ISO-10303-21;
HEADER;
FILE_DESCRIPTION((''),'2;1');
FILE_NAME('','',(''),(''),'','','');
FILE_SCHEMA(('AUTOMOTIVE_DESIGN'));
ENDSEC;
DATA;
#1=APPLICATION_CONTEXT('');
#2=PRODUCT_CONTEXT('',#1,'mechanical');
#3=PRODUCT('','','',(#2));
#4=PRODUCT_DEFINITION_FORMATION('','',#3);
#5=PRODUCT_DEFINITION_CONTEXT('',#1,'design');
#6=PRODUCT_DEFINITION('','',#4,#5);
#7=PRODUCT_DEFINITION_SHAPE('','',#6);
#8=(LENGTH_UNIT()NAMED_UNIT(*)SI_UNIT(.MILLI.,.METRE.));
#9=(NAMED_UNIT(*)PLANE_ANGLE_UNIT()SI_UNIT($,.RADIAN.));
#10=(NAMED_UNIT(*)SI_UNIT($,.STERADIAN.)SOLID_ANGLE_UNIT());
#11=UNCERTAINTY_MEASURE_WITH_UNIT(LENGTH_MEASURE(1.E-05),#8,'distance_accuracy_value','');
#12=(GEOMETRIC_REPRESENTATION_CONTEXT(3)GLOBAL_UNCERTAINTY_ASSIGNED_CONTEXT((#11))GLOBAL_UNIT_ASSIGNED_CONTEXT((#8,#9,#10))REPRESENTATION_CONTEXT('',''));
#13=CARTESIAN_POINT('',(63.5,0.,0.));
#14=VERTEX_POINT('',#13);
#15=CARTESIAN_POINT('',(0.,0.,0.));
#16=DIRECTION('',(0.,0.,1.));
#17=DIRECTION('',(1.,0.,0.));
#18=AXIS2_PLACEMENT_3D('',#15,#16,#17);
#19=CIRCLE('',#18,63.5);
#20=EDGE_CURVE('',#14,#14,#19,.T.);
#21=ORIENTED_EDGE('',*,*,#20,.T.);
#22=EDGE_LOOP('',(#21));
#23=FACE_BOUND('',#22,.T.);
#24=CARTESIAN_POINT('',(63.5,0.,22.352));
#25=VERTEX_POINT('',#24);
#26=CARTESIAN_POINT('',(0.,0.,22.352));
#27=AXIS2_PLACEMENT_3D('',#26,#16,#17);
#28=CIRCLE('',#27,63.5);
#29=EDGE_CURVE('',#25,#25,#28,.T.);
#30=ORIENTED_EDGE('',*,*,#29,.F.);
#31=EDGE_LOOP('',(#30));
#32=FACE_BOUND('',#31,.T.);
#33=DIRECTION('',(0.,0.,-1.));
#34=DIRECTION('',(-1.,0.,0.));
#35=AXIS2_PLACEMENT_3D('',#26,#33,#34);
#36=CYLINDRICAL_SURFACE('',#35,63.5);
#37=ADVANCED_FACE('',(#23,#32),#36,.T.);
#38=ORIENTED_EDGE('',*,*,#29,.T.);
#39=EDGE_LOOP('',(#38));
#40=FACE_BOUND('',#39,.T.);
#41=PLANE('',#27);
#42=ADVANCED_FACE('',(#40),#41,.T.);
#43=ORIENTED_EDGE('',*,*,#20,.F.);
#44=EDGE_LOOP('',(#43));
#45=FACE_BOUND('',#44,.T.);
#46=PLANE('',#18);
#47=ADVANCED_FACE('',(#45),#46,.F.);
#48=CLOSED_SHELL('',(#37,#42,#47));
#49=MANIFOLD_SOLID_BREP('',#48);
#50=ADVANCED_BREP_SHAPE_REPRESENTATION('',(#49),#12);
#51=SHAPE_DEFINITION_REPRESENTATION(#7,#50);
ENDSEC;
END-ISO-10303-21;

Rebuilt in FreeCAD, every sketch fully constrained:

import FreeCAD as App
import Part
import Sketcher
from FreeCAD import Vector
Q = App.Units.Quantity

doc = App.newDocument("Part")
params = doc.addObject("Spreadsheet::Sheet", "Params")
for row, (alias, value) in enumerate([
    ("sketch1_diameter", "5 in"),
    ("pad1_length", "0.88 in"),
    ("sketch2_diameter", "1.5 in"),
    ("pad2_length", "0.5 in"),
], start=1):
    params.set(f"A{row}", alias)
    params.set(f"B{row}", "=" + value)
    params.setAlias(f"B{row}", alias)

body = doc.addObject("PartDesign::Body", "Body")

# Sketch on XY plane
sketch1 = body.newObject("Sketcher::SketchObject", "Sketch")
sketch1.AttachmentSupport = (doc.getObject("XY_Plane"), [""])
sketch1.MapMode = "FlatFace"
sketch1.addGeometry(Part.Circle(Vector(0, 0, 0), Vector(0, 0, 1), 63.5), False)
sketch1.addConstraint(Sketcher.Constraint("Coincident", 0, 3, -1, 1))
sketch1.addConstraint(Sketcher.Constraint("Diameter", 0, Q("5 in")))
sketch1.setExpression("Constraints[1]", "Params.sketch1_diameter")
pad1 = body.newObject("PartDesign::Pad", "Pad")
pad1.Profile = sketch1
pad1.setExpression("Length", "Params.pad1_length")

# Sketch on XY plane
sketch2 = body.newObject("Sketcher::SketchObject", "Sketch001")
sketch2.AttachmentSupport = (doc.getObject("XY_Plane"), [""])
sketch2.MapMode = "FlatFace"
sketch2.addGeometry(Part.Circle(Vector(0, 0, 0), Vector(0, 0, 1), 19.05), False)
sketch2.addConstraint(Sketcher.Constraint("Coincident", 0, 3, -1, 1))
sketch2.addConstraint(Sketcher.Constraint("Diameter", 0, Q("1.5 in")))
sketch2.setExpression("Constraints[1]", "Params.sketch2_diameter")
pad2 = body.newObject("PartDesign::Pad", "Pad001")
pad2.Profile = sketch2
pad2.setExpression("Length", "Params.pad2_length")

doc.recompute()
